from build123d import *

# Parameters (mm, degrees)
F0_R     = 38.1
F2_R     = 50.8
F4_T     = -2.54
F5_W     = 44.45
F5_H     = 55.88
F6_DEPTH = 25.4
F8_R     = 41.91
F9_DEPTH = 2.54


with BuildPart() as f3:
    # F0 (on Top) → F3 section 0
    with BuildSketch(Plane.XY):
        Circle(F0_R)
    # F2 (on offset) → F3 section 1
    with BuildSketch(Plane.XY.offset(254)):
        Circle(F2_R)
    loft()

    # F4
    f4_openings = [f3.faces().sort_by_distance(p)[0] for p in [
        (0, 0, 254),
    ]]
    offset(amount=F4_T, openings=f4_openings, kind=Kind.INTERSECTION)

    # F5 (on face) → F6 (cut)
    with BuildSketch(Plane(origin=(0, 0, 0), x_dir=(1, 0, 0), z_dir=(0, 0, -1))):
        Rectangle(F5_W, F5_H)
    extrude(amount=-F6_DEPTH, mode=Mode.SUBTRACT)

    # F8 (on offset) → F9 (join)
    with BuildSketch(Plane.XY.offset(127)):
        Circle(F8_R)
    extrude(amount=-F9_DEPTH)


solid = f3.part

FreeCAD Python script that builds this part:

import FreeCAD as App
import Part
import Sketcher
Q = App.Units.Quantity


def faces_at(feature, points):
    """Names of the faces that lie closest to the given points."""
    faces = feature.Shape.Faces
    near = lambda p: min(range(len(faces)), key=lambda i: faces[i].distToShape(Part.Vertex(*p))[0])
    return sorted({f"Face{near(p) + 1}" for p in points})


def add_polygon(sketch, points):
    """Adds a closed chain of lines whose ends are joined by coincident constraints."""
    first, n = sketch.GeometryCount, len(points)
    for a, b in zip(points, points[1:] + points[:1]):
        sketch.addGeometry(Part.LineSegment(App.Vector(*a, 0), App.Vector(*b, 0)), False)
    for i in range(n):
        sketch.addConstraint(Sketcher.Constraint("Coincident", first + i, 2, first + (i + 1) % n, 1))

doc = App.newDocument("Part")
params = doc.addObject("Spreadsheet::Sheet", "Params")
for row, (alias, value) in enumerate([
    ("sketch1_diameter", "3 in"),
    ("sketch2_diameter", "4 in"),
    ("thickness_wall", "0.1 in"),
    ("sketch3_height", "2.2 in"),
    ("sketch3_width", "1.75 in"),
    ("pocket1_length", "1 in"),
    ("sketch4_diameter", "3.3 in"),
    ("pad1_length", "0.1 in"),
], start=1):
    params.set(f"A{row}", alias)
    params.set(f"B{row}", "=" + value)
    params.setAlias(f"B{row}", alias)

body = doc.addObject("PartDesign::Body", "Body")

sketch1 = body.newObject("Sketcher::SketchObject", "Sketch")
sketch1.AttachmentSupport = (doc.getObject("XY_Plane"), [""])
sketch1.MapMode = "FlatFace"
sketch1.addGeometry(Part.Circle(App.Vector(0, 0, 0), App.Vector(0, 0, 1), 38), False)
sketch1.addConstraint([
    Sketcher.Constraint("Coincident", 0, 3, -1, 1),
    Sketcher.Constraint("Diameter", 0, Q("3 in")),
])
sketch1.setExpression("Constraints[1]", "Params.sketch1_diameter")

sketch2 = body.newObject("Sketcher::SketchObject", "Sketch001")
sketch2.AttachmentSupport = (doc.getObject("XY_Plane"), [""])
sketch2.MapMode = "FlatFace"
sketch2.AttachmentOffset = App.Placement(App.Vector(0, 0, 10 * 25.4), App.Rotation())
sketch2.addGeometry(Part.Circle(App.Vector(0, 0, 0), App.Vector(0, 0, 1), 51), False)
sketch2.addConstraint([
    Sketcher.Constraint("Coincident", 0, 3, -1, 1),
    Sketcher.Constraint("Diameter", 0, Q("4 in")),
])
sketch2.setExpression("Constraints[1]", "Params.sketch2_diameter")

additiveloft = body.newObject("PartDesign::AdditiveLoft", "AdditiveLoft")
additiveloft.Profile = sketch1
additiveloft.Sections = [sketch2]
doc.recompute()

thickness = body.newObject("PartDesign::Thickness", "Thickness")
thickness.Base = (additiveloft, faces_at(additiveloft, [(0, 0, 254)]))
thickness.setExpression("Value", "Params.thickness_wall")
thickness.Reversed = True
thickness.Join = "Intersection"

sketch3 = body.newObject("Sketcher::SketchObject", "Sketch002")
sketch3.AttachmentSupport = (doc.getObject("XY_Plane"), [""])
sketch3.MapMode = "FlatFace"
add_polygon(sketch3, [(-22, -28), (-22, 28), (22, 28), (22, -28)])
sketch3.addConstraint([
    Sketcher.Constraint("Vertical", 0),
    Sketcher.Constraint("Horizontal", 1),
    Sketcher.Constraint("Vertical", 2),
    Sketcher.Constraint("Horizontal", 3),
    Sketcher.Constraint("Symmetric", 0, 2, 2, 2, -1, 1),
    Sketcher.Constraint("DistanceY", 0, 1, 0, 2, Q("2.2 in")),
    Sketcher.Constraint("DistanceX", 1, 1, 1, 2, Q("1.75 in")),
])
sketch3.setExpression("Constraints[9]", "Params.sketch3_height")
sketch3.setExpression("Constraints[10]", "Params.sketch3_width")
pocket1 = body.newObject("PartDesign::Pocket", "Pocket")
pocket1.Profile = sketch3
pocket1.setExpression("Length", "Params.pocket1_length")
pocket1.Reversed = True

sketch4 = body.newObject("Sketcher::SketchObject", "Sketch003")
sketch4.AttachmentSupport = (doc.getObject("XY_Plane"), [""])
sketch4.MapMode = "FlatFace"
sketch4.AttachmentOffset = App.Placement(App.Vector(0, 0, 5 * 25.4), App.Rotation())
sketch4.addGeometry(Part.Circle(App.Vector(0, 0, 0), App.Vector(0, 0, 1), 42), False)
sketch4.addConstraint([
    Sketcher.Constraint("Coincident", 0, 3, -1, 1),
    Sketcher.Constraint("Diameter", 0, Q("3.3 in")),
])
sketch4.setExpression("Constraints[1]", "Params.sketch4_diameter")
pad1 = body.newObject("PartDesign::Pad", "Pad")
pad1.Profile = sketch4
pad1.setExpression("Length", "Params.pad1_length")
pad1.Reversed = True

doc.recompute()
